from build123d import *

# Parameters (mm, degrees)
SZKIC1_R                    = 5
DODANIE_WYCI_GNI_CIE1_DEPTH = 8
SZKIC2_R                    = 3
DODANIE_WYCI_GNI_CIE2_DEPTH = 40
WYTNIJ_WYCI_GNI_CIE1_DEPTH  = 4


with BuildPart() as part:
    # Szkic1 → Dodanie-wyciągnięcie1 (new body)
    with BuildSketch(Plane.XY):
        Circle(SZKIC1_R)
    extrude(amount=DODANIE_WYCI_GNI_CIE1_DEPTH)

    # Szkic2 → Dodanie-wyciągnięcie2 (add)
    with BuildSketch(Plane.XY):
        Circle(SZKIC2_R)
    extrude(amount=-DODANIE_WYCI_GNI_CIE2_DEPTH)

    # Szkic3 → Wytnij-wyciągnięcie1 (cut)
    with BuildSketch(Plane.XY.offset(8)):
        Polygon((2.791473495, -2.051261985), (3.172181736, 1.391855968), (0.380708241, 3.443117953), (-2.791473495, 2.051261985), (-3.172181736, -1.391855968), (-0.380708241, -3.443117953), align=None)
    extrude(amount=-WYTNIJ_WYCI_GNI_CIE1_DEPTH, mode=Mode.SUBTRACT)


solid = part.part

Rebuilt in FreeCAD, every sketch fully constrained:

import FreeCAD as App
import Part
import Sketcher
Q = App.Units.Quantity


def add_polygon(sketch, points):
    """Adds a closed chain of lines whose ends are joined by coincident constraints."""
    first, n = sketch.GeometryCount, len(points)
    for a, b in zip(points, points[1:] + points[:1]):
        sketch.addGeometry(Part.LineSegment(App.Vector(*a, 0), App.Vector(*b, 0)), False)
    for i in range(n):
        sketch.addConstraint(Sketcher.Constraint("Coincident", first + i, 2, first + (i + 1) % n, 1))

doc = App.newDocument("Part")
body = doc.addObject("PartDesign::Body", "Body")

# Sketch on XY plane
sketch1 = body.newObject("Sketcher::SketchObject", "Sketch")
sketch1.AttachmentSupport = (doc.getObject("XY_Plane"), [""])
sketch1.MapMode = "FlatFace"
sketch1.addGeometry(Part.Circle(App.Vector(0, 0, 0), App.Vector(0, 0, 1), 5), False)
sketch1.addConstraint(Sketcher.Constraint("Coincident", 0, 3, -1, 1))
sketch1.addConstraint(Sketcher.Constraint("Diameter", 0, Q("10 mm")))
pad1 = body.newObject("PartDesign::Pad", "Pad")
pad1.Profile = sketch1
pad1.Length = 8

# Sketch on XY plane
sketch2 = body.newObject("Sketcher::SketchObject", "Sketch001")
sketch2.AttachmentSupport = (doc.getObject("XY_Plane"), [""])
sketch2.MapMode = "FlatFace"
sketch2.addGeometry(Part.Circle(App.Vector(0, 0, 0), App.Vector(0, 0, 1), 3), False)
sketch2.addConstraint(Sketcher.Constraint("Coincident", 0, 3, -1, 1))
sketch2.addConstraint(Sketcher.Constraint("Diameter", 0, Q("6 mm")))
pad2 = body.newObject("PartDesign::Pad", "Pad001")
pad2.Profile = sketch2
pad2.Length = 40
pad2.Reversed = True

# Sketch on XY plane
sketch3 = body.newObject("Sketcher::SketchObject", "Sketch002")
sketch3.AttachmentSupport = (doc.getObject("XY_Plane"), [""])
sketch3.MapMode = "FlatFace"
sketch3.AttachmentOffset = App.Placement(App.Vector(0, 0, 8), App.Rotation())
add_polygon(sketch3, [(2.8, -2.1), (3.2, 1.4), (0.4, 3.4), (-2.8, 2.1), (-3.2, -1.4), (-0.4, -3.4)])  # lines 0-5
sketch3.addConstraint(Sketcher.Constraint("Symmetric", 0, 2, 3, 2, -1, 1))
sketch3.addConstraint(Sketcher.Constraint("Symmetric", 1, 2, 4, 2, -1, 1))
sketch3.addConstraint(Sketcher.Constraint("Symmetric", 2, 2, 5, 2, -1, 1))
sketch3.addConstraint(Sketcher.Constraint("Equal", 0, 1))
sketch3.addConstraint(Sketcher.Constraint("Equal", 1, 2))
sketch3.addConstraint(Sketcher.Constraint("Distance", 0, Q("3.464102 mm")))
sketch3.addConstraint(Sketcher.Constraint("DistanceX", -1, 1, 0, 2, Q("3.172182 mm")))
sketch3.addConstraint(Sketcher.Constraint("DistanceX", -1, 1, 1, 2, Q("0.380708 mm")))
sketch3.addConstraint(Sketcher.Constraint("DistanceY", -1, 1, 2, 2, Q("2.051262 mm")))
pocket1 = body.newObject("PartDesign::Pocket", "Pocket")
pocket1.Profile = sketch3
pocket1.Length = 4

doc.recompute()
